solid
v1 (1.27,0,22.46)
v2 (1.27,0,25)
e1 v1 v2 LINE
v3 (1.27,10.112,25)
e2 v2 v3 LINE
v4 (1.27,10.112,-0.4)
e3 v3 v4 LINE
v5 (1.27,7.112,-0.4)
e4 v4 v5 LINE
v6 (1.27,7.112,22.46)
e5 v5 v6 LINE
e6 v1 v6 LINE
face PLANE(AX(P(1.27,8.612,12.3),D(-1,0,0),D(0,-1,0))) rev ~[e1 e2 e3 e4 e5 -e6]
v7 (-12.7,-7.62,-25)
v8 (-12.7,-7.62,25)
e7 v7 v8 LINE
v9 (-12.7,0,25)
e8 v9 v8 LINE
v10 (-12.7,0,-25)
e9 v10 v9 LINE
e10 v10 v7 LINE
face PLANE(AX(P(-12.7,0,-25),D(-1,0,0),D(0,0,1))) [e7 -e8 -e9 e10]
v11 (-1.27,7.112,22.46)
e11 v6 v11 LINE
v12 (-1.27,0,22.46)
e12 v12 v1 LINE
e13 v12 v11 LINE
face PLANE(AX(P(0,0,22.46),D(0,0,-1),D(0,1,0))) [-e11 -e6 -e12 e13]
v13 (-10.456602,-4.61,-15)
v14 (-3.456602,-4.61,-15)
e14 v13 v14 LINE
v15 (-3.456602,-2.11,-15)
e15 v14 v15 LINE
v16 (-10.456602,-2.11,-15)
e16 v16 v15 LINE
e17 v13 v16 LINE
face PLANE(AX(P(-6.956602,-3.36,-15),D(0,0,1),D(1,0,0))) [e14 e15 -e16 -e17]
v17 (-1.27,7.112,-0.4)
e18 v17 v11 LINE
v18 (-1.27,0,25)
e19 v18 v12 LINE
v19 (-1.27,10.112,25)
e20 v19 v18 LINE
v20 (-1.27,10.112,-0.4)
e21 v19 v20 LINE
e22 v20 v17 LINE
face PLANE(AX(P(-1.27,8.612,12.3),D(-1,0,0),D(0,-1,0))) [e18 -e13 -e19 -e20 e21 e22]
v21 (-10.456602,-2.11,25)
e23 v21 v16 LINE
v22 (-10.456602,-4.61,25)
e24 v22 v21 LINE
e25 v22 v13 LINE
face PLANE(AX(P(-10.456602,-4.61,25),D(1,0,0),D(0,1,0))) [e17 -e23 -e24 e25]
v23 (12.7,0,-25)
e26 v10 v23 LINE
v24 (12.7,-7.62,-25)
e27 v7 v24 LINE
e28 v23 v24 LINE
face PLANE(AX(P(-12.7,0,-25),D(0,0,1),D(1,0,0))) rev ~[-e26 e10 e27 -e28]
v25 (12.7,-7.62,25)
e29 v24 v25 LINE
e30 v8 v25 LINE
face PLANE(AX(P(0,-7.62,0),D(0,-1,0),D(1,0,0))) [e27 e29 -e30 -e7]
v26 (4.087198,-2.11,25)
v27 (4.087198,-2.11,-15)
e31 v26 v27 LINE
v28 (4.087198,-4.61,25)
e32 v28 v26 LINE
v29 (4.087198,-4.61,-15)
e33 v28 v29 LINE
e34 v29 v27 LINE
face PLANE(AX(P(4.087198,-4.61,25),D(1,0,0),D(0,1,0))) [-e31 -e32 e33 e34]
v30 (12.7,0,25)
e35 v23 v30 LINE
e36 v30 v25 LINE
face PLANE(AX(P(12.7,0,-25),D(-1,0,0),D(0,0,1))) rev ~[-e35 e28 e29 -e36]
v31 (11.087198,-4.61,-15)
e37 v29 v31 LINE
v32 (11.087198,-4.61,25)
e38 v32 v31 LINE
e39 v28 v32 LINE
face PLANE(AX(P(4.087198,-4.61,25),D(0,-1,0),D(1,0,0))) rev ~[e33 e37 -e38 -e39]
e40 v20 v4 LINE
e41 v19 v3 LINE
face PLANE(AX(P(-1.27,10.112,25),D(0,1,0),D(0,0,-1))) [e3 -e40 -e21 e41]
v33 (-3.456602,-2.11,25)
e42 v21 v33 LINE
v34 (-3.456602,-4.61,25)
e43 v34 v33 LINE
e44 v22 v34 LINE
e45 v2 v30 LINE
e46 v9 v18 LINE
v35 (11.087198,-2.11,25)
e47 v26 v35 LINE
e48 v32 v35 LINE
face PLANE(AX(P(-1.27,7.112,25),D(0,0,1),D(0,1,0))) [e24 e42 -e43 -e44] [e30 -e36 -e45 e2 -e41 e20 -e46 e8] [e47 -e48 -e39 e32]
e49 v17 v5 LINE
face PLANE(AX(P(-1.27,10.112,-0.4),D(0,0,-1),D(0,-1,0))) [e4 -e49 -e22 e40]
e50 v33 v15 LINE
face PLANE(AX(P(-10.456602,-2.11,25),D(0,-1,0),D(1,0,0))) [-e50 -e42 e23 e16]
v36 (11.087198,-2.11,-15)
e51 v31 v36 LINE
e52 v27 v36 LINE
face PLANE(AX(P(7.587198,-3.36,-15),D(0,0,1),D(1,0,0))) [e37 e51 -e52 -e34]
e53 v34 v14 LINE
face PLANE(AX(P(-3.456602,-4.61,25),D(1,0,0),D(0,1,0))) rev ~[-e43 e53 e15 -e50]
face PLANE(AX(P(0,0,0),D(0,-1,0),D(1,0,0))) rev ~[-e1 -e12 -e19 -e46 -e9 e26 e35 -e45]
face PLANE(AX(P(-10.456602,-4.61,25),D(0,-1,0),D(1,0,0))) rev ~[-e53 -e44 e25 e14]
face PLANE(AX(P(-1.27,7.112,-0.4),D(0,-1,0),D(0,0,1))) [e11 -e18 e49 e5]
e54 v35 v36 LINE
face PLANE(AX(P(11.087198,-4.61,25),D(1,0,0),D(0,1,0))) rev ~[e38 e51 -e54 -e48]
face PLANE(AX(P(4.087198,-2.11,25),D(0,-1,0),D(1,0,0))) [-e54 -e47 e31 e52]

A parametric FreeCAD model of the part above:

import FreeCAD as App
import Part
import Sketcher
Q = App.Units.Quantity

doc = App.newDocument("Part")
params = doc.addObject("Spreadsheet::Sheet", "Params")
for row, (alias, value) in enumerate([
    ("sketch1_height", "50 mm"),
    ("sketch1_width", "25.4 mm"),
    ("pad1_length", "7.62 mm"),
    ("sketch2_height", "2.54 mm"),
    ("pad2_length", "1.27 mm"),
    ("sketch3_height", "2.54 mm"),
    ("pad3_length", "1.27 mm"),
    ("sketch4_width", "3 mm"),
    ("sketch4_height", "25.4 mm"),
    ("pad4_length", "2.54 mm"),
    ("sketch5_width", "7 mm"),
    ("sketch5_height", "2.5 mm"),
    ("pocket1_length", "40 mm"),
], start=1):
    params.set(f"A{row}", alias)
    params.set(f"B{row}", "=" + value)
    params.setAlias(f"B{row}", alias)

body = doc.addObject("PartDesign::Body", "Body")

sketch1 = doc.addObject("Sketcher::SketchObject", "Sketch")
body.addObject(sketch1)
sketch1.AttachmentSupport = (doc.XZ_Plane, [""])
sketch1.MapMode = "FlatFace"
sketch1.addGeometry([
    Part.LineSegment(App.Vector(-13, 25, 0), App.Vector(-13, -25, 0)),
    Part.LineSegment(App.Vector(-13, -25, 0), App.Vector(13, -25, 0)),
    Part.LineSegment(App.Vector(13, -25, 0), App.Vector(13, 25, 0)),
    Part.LineSegment(App.Vector(13, 25, 0), App.Vector(-13, 25, 0)),
], False)
sketch1.addConstraint([
    Sketcher.Constraint("Coincident", 0, 2, 1, 1),
    Sketcher.Constraint("Coincident", 1, 2, 2, 1),
    Sketcher.Constraint("Coincident", 2, 2, 3, 1),
    Sketcher.Constraint("Coincident", 3, 2, 0, 1),
    Sketcher.Constraint("Vertical", 0),
    Sketcher.Constraint("Horizontal", 1),
    Sketcher.Constraint("Vertical", 2),
    Sketcher.Constraint("Horizontal", 3),
    Sketcher.Constraint("Symmetric", 0, 2, 2, 2, -1, 1),
    Sketcher.Constraint("DistanceY", 0, 2, 0, 1, Q("50 mm")),
    Sketcher.Constraint("DistanceX", 1, 1, 1, 2, Q("25.4 mm")),
])
sketch1.setExpression("Constraints[9]", "Params.sketch1_height")
sketch1.setExpression("Constraints[10]", "Params.sketch1_width")
pad1 = doc.addObject("PartDesign::Pad", "Pad")
body.addObject(pad1)
pad1.Profile = sketch1
pad1.setExpression("Length", "Params.pad1_length")

sketch2 = doc.addObject("Sketcher::SketchObject", "Sketch001")
body.addObject(sketch2)
sketch2.AttachmentSupport = (doc.YZ_Plane, [""])
sketch2.MapMode = "FlatFace"
sketch2.addGeometry([
    Part.LineSegment(App.Vector(0, 25, 0), App.Vector(0, 22.5, 0)),
    Part.LineSegment(App.Vector(0, 22.5, 0), App.Vector(7.1, 22.5, 0)),
    Part.LineSegment(App.Vector(7.1, 22.5, 0), App.Vector(7.1, 25, 0)),
    Part.LineSegment(App.Vector(7.1, 25, 0), App.Vector(0, 25, 0)),
], False)
sketch2.addConstraint([
    Sketcher.Constraint("Coincident", 0, 2, 1, 1),
    Sketcher.Constraint("Coincident", 1, 2, 2, 1),
    Sketcher.Constraint("Coincident", 2, 2, 3, 1),
    Sketcher.Constraint("Coincident", 3, 2, 0, 1),
    Sketcher.Constraint("Vertical", 0),
    Sketcher.Constraint("Horizontal", 1),
    Sketcher.Constraint("Vertical", 2),
    Sketcher.Constraint("Horizontal", 3),
    Sketcher.Constraint("PointOnObject", 0, 2, -2),
    Sketcher.Constraint("DistanceY", -1, 1, 2, 2, Q("25 mm")),
    Sketcher.Constraint("DistanceY", 0, 2, 0, 1, Q("2.54 mm")),
    Sketcher.Constraint("DistanceX", 1, 1, 1, 2, Q("7.112 mm")),
])
sketch2.setExpression("Constraints[10]", "Params.sketch2_height")
pad2 = doc.addObject("PartDesign::Pad", "Pad001")
body.addObject(pad2)
pad2.Profile = sketch2
pad2.setExpression("Length", "Params.pad2_length")

sketch3 = doc.addObject("Sketcher::SketchObject", "Sketch002")
body.addObject(sketch3)
sketch3.AttachmentSupport = (doc.YZ_Plane, [""])
sketch3.MapMode = "FlatFace"
sketch3.addGeometry([
    Part.LineSegment(App.Vector(0, 22.5, 0), App.Vector(0, 25, 0)),
    Part.LineSegment(App.Vector(0, 25, 0), App.Vector(7.1, 25, 0)),
    Part.LineSegment(App.Vector(7.1, 25, 0), App.Vector(7.1, 22.5, 0)),
    Part.LineSegment(App.Vector(7.1, 22.5, 0), App.Vector(0, 22.5, 0)),
], False)
sketch3.addConstraint([
    Sketcher.Constraint("Coincident", 0, 2, 1, 1),
    Sketcher.Constraint("Coincident", 1, 2, 2, 1),
    Sketcher.Constraint("Coincident", 2, 2, 3, 1),
    Sketcher.Constraint("Coincident", 3, 2, 0, 1),
    Sketcher.Constraint("Vertical", 0),
    Sketcher.Constraint("Horizontal", 1),
    Sketcher.Constraint("Vertical", 2),
    Sketcher.Constraint("Horizontal", 3),
    Sketcher.Constraint("PointOnObject", 0, 2, -2),
    Sketcher.Constraint("DistanceY", -1, 1, 0, 2, Q("25 mm")),
    Sketcher.Constraint("DistanceY", 0, 1, 0, 2, Q("2.54 mm")),
    Sketcher.Constraint("DistanceX", 1, 1, 1, 2, Q("7.112 mm")),
])
sketch3.setExpression("Constraints[10]", "Params.sketch3_height")
pad3 = doc.addObject("PartDesign::Pad", "Pad002")
body.addObject(pad3)
pad3.Profile = sketch3
pad3.setExpression("Length", "Params.pad3_length")
pad3.Reversed = True

sketch4 = doc.addObject("Sketcher::SketchObject", "Sketch003")
body.addObject(sketch4)
sketch4.AttachmentSupport = (doc.YZ_Plane, [""])
sketch4.MapMode = "FlatFace"
sketch4.AttachmentOffset = App.Placement(App.Vector(0, 0, -1.27), App.Rotation())
sketch4.addGeometry([
    Part.LineSegment(App.Vector(7.1, 25, 0), App.Vector(10.1, 25, 0)),
    Part.LineSegment(App.Vector(10.1, 25, 0), App.Vector(10.1, -0.4, 0)),
    Part.LineSegment(App.Vector(10.1, -0.4, 0), App.Vector(7.1, -0.4, 0)),
    Part.LineSegment(App.Vector(7.1, -0.4, 0), App.Vector(7.1, 25, 0)),
], False)
sketch4.addConstraint([
    Sketcher.Constraint("Coincident", 0, 2, 1, 1),
    Sketcher.Constraint("Coincident", 1, 2, 2, 1),
    Sketcher.Constraint("Coincident", 2, 2, 3, 1),
    Sketcher.Constraint("Coincident", 3, 2, 0, 1),
    Sketcher.Constraint("Horizontal", 0),
    Sketcher.Constraint("Vertical", 1),
    Sketcher.Constraint("Horizontal", 2),
    Sketcher.Constraint("Vertical", 3),
    Sketcher.Constraint("DistanceX", 0, 1, 0, 2, Q("3 mm")),
    Sketcher.Constraint("DistanceY", 1, 2, 1, 1, Q("25.4 mm")),
    Sketcher.Constraint("DistanceY", -1, 1, 0, 2, Q("25 mm")),
    Sketcher.Constraint("DistanceX", -1, 1, 0, 2, Q("10.112 mm")),
])
sketch4.setExpression("Constraints[8]", "Params.sketch4_width")
sketch4.setExpression("Constraints[9]", "Params.sketch4_height")
pad4 = doc.addObject("PartDesign::Pad", "Pad003")
body.addObject(pad4)
pad4.Profile = sketch4
pad4.setExpression("Length", "Params.pad4_length")

sketch5 = doc.addObject("Sketcher::SketchObject", "Sketch004")
body.addObject(sketch5)
sketch5.AttachmentSupport = (doc.XY_Plane, [""])
sketch5.MapMode = "FlatFace"
sketch5.AttachmentOffset = App.Placement(App.Vector(0, 0, 25), App.Rotation())
sketch5.addGeometry([
    Part.LineSegment(App.Vector(-10.5, -2.1, 0), App.Vector(-10.5, -4.6, 0)),
    Part.LineSegment(App.Vector(-10.5, -4.6, 0), App.Vector(-3.5, -4.6, 0)),
    Part.LineSegment(App.Vector(-3.5, -4.6, 0), App.Vector(-3.5, -2.1, 0)),
    Part.LineSegment(App.Vector(-3.5, -2.1, 0), App.Vector(-10.5, -2.1, 0)),
    Part.LineSegment(App.Vector(4.1, -2.1, 0), App.Vector(4.1, -4.6, 0)),
    Part.LineSegment(App.Vector(4.1, -4.6, 0), App.Vector(11.1, -4.6, 0)),
    Part.LineSegment(App.Vector(11.1, -4.6, 0), App.Vector(11.1, -2.1, 0)),
    Part.LineSegment(App.Vector(11.1, -2.1, 0), App.Vector(4.1, -2.1, 0)),
], False)
sketch5.addConstraint([
    Sketcher.Constraint("Coincident", 0, 2, 1, 1),
    Sketcher.Constraint("Coincident", 1, 2, 2, 1),
    Sketcher.Constraint("Coincident", 2, 2, 3, 1),
    Sketcher.Constraint("Coincident", 3, 2, 0, 1),
    Sketcher.Constraint("Coincident", 4, 2, 5, 1),
    Sketcher.Constraint("Coincident", 5, 2, 6, 1),
    Sketcher.Constraint("Coincident", 6, 2, 7, 1),
    Sketcher.Constraint("Coincident", 7, 2, 4, 1),
    Sketcher.Constraint("Vertical", 0),
    Sketcher.Constraint("Horizontal", 1),
    Sketcher.Constraint("Vertical", 2),
    Sketcher.Constraint("Horizontal", 3),
    Sketcher.Constraint("Vertical", 4),
    Sketcher.Constraint("Horizontal", 5),
    Sketcher.Constraint("Vertical", 6),
    Sketcher.Constraint("Horizontal", 7),
    Sketcher.Constraint("Horizontal", 1, 2, 4, 2),
    Sketcher.Constraint("Horizontal", 3, 2, 6, 2),
    Sketcher.Constraint("Equal", 3, 5),
    Sketcher.Constraint("DistanceX", 1, 1, 1, 2, Q("7 mm")),
    Sketcher.Constraint("DistanceY", 0, 2, 0, 1, Q("2.5 mm")),
    Sketcher.Constraint("DistanceY", 0, 2, -1, 1, Q("4.61 mm")),
    Sketcher.Constraint("DistanceX", -1, 1, 5, 2, Q("11.087198 mm")),
    Sketcher.Constraint("DistanceX", 1, 2, 4, 2, Q("7.5438 mm")),
])
sketch5.setExpression("Constraints[19]", "Params.sketch5_width")
sketch5.setExpression("Constraints[20]", "Params.sketch5_height")
pocket1 = doc.addObject("PartDesign::Pocket", "Pocket")
body.addObject(pocket1)
pocket1.Profile = sketch5
pocket1.setExpression("Length", "Params.pocket1_length")

doc.recompute()
